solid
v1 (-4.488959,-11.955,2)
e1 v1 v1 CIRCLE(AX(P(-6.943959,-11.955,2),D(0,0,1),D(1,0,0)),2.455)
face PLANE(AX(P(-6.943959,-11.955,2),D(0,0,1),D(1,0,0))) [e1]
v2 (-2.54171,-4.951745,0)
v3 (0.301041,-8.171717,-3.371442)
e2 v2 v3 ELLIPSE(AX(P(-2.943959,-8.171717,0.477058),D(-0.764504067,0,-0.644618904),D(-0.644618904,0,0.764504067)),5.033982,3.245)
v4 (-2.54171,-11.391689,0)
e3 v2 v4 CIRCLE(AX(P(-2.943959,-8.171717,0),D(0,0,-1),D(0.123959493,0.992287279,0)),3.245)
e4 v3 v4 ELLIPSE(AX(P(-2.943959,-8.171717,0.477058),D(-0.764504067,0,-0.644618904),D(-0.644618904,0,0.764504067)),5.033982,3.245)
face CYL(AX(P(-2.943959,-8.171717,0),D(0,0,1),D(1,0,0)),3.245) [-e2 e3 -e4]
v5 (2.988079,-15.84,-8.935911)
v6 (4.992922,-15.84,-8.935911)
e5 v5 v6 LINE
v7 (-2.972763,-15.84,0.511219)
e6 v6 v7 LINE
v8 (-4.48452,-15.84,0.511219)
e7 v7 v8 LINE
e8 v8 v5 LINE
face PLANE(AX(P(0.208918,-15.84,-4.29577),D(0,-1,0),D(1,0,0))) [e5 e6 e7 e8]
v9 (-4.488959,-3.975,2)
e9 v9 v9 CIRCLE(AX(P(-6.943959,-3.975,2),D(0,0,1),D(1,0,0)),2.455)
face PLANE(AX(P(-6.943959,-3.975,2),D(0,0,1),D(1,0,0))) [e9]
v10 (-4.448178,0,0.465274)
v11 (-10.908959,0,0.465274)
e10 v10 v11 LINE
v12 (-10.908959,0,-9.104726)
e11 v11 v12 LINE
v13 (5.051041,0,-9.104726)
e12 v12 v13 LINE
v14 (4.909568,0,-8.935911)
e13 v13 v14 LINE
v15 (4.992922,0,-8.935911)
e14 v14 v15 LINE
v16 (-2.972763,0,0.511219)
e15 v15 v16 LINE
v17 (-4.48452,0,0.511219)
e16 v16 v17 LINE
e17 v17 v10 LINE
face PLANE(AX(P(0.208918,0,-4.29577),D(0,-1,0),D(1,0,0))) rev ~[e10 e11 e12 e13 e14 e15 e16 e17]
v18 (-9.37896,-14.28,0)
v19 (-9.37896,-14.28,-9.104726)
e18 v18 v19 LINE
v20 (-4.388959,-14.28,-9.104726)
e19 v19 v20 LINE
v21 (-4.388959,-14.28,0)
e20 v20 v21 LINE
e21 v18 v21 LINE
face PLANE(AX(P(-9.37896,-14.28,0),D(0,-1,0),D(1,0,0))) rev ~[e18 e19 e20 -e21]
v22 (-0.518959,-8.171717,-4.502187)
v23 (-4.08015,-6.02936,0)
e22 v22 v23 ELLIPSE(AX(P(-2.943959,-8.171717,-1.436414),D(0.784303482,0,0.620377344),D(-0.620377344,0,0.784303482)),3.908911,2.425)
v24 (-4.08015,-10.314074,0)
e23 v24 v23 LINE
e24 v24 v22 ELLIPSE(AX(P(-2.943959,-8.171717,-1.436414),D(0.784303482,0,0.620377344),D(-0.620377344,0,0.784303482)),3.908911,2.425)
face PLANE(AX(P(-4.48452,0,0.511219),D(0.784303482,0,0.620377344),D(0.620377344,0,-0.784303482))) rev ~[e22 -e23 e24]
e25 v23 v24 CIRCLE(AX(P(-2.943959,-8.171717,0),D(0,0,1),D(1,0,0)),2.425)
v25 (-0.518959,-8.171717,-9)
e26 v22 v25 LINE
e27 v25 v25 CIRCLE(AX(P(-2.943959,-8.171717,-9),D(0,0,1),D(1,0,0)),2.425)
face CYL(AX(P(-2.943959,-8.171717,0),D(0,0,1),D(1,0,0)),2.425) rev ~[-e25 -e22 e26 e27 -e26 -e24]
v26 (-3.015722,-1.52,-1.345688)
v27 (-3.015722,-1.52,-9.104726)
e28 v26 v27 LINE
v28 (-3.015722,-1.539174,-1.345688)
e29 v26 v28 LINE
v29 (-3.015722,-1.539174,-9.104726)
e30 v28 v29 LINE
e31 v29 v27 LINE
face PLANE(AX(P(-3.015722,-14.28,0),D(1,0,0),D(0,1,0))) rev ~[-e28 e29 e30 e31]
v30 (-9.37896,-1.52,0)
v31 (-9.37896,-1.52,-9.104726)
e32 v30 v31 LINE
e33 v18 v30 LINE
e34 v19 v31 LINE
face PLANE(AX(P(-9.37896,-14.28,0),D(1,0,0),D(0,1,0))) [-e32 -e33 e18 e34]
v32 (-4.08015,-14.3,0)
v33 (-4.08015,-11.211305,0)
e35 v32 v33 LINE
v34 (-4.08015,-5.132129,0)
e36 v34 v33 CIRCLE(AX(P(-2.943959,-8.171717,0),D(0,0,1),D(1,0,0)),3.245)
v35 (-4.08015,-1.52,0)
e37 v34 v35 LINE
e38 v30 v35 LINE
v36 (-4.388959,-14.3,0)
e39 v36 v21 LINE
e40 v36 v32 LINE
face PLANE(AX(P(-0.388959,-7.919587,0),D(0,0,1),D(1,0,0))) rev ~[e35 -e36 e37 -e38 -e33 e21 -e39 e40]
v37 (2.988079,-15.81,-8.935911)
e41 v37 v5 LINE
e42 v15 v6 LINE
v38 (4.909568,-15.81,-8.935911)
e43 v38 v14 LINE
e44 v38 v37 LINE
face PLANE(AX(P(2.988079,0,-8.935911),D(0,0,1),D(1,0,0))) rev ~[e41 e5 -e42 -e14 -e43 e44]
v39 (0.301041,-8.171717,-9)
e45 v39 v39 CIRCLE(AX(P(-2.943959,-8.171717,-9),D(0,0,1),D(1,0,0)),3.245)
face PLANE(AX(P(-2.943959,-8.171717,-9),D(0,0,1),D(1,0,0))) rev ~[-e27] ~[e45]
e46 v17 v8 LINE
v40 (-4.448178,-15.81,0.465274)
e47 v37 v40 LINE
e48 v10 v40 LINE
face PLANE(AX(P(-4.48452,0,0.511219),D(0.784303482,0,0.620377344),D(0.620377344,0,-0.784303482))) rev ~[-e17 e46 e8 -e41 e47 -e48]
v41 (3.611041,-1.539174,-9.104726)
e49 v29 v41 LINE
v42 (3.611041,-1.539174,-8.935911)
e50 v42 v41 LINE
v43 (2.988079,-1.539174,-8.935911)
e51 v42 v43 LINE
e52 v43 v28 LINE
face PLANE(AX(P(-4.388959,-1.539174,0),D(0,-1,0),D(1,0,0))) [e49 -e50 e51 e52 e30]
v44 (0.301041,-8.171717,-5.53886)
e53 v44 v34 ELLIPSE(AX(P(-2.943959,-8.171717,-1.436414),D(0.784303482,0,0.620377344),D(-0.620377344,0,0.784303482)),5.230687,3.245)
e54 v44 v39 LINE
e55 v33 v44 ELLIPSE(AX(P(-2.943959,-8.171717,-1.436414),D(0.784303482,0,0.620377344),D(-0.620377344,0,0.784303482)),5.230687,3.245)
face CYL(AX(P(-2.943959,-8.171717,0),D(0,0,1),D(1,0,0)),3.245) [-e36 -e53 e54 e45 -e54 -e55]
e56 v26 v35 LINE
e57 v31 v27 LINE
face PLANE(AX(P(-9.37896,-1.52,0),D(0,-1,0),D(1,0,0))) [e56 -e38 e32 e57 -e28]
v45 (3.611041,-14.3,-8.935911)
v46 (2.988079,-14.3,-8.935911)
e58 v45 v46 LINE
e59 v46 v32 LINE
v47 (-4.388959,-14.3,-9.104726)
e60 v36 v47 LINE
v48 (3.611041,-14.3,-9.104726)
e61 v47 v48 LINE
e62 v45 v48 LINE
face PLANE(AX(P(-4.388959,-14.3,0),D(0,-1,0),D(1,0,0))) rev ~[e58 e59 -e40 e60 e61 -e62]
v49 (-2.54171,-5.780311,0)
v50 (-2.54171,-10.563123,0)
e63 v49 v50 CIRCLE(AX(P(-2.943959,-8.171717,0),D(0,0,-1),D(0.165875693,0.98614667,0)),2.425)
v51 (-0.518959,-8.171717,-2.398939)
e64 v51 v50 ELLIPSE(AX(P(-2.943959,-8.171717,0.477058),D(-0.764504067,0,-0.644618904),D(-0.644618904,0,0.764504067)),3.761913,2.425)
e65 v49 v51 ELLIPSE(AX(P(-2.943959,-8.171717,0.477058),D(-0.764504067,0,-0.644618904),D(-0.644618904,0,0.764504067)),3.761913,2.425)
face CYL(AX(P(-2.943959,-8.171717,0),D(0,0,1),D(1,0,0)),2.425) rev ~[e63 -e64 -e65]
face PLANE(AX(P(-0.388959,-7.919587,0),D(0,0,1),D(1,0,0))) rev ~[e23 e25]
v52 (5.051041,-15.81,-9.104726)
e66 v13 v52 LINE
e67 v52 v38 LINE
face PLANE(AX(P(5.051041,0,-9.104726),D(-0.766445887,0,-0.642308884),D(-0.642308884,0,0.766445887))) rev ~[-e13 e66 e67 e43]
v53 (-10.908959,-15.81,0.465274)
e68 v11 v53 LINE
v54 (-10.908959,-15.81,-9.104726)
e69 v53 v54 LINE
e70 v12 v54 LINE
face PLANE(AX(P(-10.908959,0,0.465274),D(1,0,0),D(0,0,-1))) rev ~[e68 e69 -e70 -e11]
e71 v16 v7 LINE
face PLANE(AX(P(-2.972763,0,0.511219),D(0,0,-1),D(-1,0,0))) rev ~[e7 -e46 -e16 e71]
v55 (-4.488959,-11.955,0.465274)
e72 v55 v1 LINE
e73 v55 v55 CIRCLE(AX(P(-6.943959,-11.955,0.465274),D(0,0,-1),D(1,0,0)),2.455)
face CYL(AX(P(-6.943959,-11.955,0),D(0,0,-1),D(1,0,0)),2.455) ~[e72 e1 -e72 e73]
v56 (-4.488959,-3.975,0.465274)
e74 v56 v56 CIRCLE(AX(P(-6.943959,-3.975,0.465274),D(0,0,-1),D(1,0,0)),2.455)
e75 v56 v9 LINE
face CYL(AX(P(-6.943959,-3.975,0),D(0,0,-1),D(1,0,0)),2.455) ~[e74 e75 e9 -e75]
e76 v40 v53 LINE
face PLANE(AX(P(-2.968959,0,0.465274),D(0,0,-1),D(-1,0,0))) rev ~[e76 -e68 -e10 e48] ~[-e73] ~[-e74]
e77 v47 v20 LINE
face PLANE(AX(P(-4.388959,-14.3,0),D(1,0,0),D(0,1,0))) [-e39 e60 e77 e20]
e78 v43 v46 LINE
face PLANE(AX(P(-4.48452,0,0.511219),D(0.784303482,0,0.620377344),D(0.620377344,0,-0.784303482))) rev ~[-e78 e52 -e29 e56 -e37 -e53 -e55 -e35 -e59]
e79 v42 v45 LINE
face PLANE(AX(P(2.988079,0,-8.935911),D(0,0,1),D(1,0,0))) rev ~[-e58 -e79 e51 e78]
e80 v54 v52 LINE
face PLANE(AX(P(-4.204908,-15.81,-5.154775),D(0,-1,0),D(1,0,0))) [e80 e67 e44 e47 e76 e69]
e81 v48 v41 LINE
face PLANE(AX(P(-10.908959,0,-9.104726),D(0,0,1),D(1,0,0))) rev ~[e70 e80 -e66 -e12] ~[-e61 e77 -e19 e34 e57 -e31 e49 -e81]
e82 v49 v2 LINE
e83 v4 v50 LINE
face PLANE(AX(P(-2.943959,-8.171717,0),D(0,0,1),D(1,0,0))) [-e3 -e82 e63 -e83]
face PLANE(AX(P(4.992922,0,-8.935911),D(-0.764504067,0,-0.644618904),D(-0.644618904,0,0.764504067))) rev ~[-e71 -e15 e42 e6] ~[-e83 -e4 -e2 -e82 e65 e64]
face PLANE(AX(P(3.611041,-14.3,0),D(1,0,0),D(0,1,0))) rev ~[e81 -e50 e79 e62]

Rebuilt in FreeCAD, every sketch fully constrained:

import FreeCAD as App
import Part
import Sketcher
Q = App.Units.Quantity


def add_polygon(sketch, points):
    """Adds a closed chain of lines whose ends are joined by coincident constraints."""
    first, n = sketch.GeometryCount, len(points)
    for a, b in zip(points, points[1:] + points[:1]):
        sketch.addGeometry(Part.LineSegment(App.Vector(*a, 0), App.Vector(*b, 0)), False)
    for i in range(n):
        sketch.addConstraint(Sketcher.Constraint("Coincident", first + i, 2, first + (i + 1) % n, 1))

doc = App.newDocument("Part")
body = doc.addObject("PartDesign::Body", "Body")

# Sketch on XZ plane
sketch1 = body.newObject("Sketcher::SketchObject", "Sketch")
sketch1.AttachmentSupport = (doc.getObject("XZ_Plane"), [""])
sketch1.MapMode = "FlatFace"
add_polygon(sketch1, [(-3, 0), (-11, 0), (-11, -9), (5, -9)])  # lines 0-3
sketch1.addConstraint([
    Sketcher.Constraint("Horizontal", 0),
    Sketcher.Constraint("Vertical", 1),
    Sketcher.Constraint("Horizontal", 2),
    Sketcher.Constraint("DistanceX", 0, 2, 0, 1, Q("7.94 mm")),
    Sketcher.Constraint("DistanceX", 2, 1, 2, 2, Q("15.96 mm")),
    Sketcher.Constraint("DistanceY", 1, 2, 1, 1, Q("9.57 mm")),
    Sketcher.Constraint("DistanceX", 0, 2, -1, 1, Q("10.908959 mm")),
    Sketcher.Constraint("DistanceY", -1, 1, 0, 2, Q("0.465274 mm")),
])
pad1 = body.newObject("PartDesign::Pad", "Pad")
pad1.Profile = sketch1
pad1.Length = 15.81

# Sketch on XY plane
sketch2 = body.newObject("Sketcher::SketchObject", "Sketch001")
sketch2.AttachmentSupport = (doc.getObject("XY_Plane"), [""])
sketch2.MapMode = "FlatFace"
sketch2.addGeometry([
    Part.Circle(App.Vector(-6.9, -4, 0), App.Vector(0, 0, 1), 2.5),
    Part.Circle(App.Vector(-6.9, -12, 0), App.Vector(0, 0, 1), 2.5),
], False)
sketch2.addConstraint([
    Sketcher.Constraint("Equal", 0, 1),
    Sketcher.Constraint("Vertical", 0, 3, 1, 3),
    Sketcher.Constraint("Diameter", 0, Q("4.91 mm")),
    Sketcher.Constraint("DistanceY", 1, 3, 0, 3, Q("7.98 mm")),
    Sketcher.Constraint("DistanceY", 0, 3, -1, 1, Q("3.975 mm")),
    Sketcher.Constraint("DistanceX", 0, 3, -1, 1, Q("6.943959 mm")),
])
pad2 = body.newObject("PartDesign::Pad", "Pad001")
pad2.Profile = sketch2
pad2.Length = 2

# Sketch on XY plane
sketch3 = body.newObject("Sketcher::SketchObject", "Sketch002")
sketch3.AttachmentSupport = (doc.getObject("XY_Plane"), [""])
sketch3.MapMode = "FlatFace"
add_polygon(sketch3, [(-9, -2), (-9, -14), (-3, -14), (-3, -2)])  # lines 0-3
sketch3.addConstraint([
    Sketcher.Constraint("Vertical", 0),
    Sketcher.Constraint("Horizontal", 1),
    Sketcher.Constraint("Vertical", 2),
    Sketcher.Constraint("Horizontal", 3),
    Sketcher.Constraint("DistanceY", 0, 2, 0, 1, Q("12.76 mm")),
    Sketcher.Constraint("DistanceY", 0, 2, -1, 1, Q("14.28 mm")),
    Sketcher.Constraint("DistanceX", 1, 1, 1, 2, Q("6.363237 mm")),
    Sketcher.Constraint("DistanceX", 0, 2, -1, 1, Q("9.37896 mm")),
])
pocket1 = body.newObject("PartDesign::Pocket", "Pocket")
pocket1.Profile = sketch3
pocket1.Length = 10

# Sketch on XY plane
sketch4 = body.newObject("Sketcher::SketchObject", "Sketch003")
sketch4.AttachmentSupport = (doc.getObject("XY_Plane"), [""])
sketch4.MapMode = "FlatFace"
add_polygon(sketch4, [(-4, -2), (-4, -14), (4, -14), (4, -2)])  # lines 0-3
sketch4.addConstraint([
    Sketcher.Constraint("Vertical", 0),
    Sketcher.Constraint("Horizontal", 1),
    Sketcher.Constraint("Vertical", 2),
    Sketcher.Constraint("Horizontal", 3),
    Sketcher.Constraint("DistanceX", 1, 1, 1, 2, Q("8 mm")),
    Sketcher.Constraint("DistanceY", 0, 2, -1, 1, Q("14.3 mm")),
    Sketcher.Constraint("DistanceY", 0, 2, 0, 1, Q("12.760826 mm")),
    Sketcher.Constraint("DistanceX", 0, 2, -1, 1, Q("4.388959 mm")),
])
pocket2 = body.newObject("PartDesign::Pocket", "Pocket001")
pocket2.Profile = sketch4
pocket2.Length = 10

# Sketch on XZ plane
sketch5 = body.newObject("Sketcher::SketchObject", "Sketch004")
sketch5.AttachmentSupport = (doc.getObject("XZ_Plane"), [""])
sketch5.MapMode = "FlatFace"
add_polygon(sketch5, [(5, -8.9), (-3, 0.5), (-4.5, 0.5), (3, -8.9)])  # lines 0-3
sketch5.addConstraint([
    Sketcher.Constraint("Horizontal", 1),
    Sketcher.Constraint("Horizontal", 3),
    Sketcher.Constraint("Distance", 0, Q("12.3572 mm")),
    Sketcher.Constraint("DistanceX", 1, 2, 2, 2, Q("7.472599 mm")),
    Sketcher.Constraint("Distance", 2, Q("12.045248 mm")),
    Sketcher.Constraint("DistanceX", 1, 2, 1, 1, Q("1.511757 mm")),
    Sketcher.Constraint("DistanceY", -1, 1, 0, 2, Q("0.511219 mm")),
    Sketcher.Constraint("DistanceX", 1, 2, -1, 1, Q("4.48452 mm")),
])
pad3 = body.newObject("PartDesign::Pad", "Pad002")
pad3.Profile = sketch5
pad3.Length = 15.84

# Sketch on XY plane
sketch6 = body.newObject("Sketcher::SketchObject", "Sketch005")
sketch6.AttachmentSupport = (doc.getObject("XY_Plane"), [""])
sketch6.MapMode = "FlatFace"
sketch6.addGeometry([
    Part.Circle(App.Vector(-2.9, -8.2, 0), App.Vector(0, 0, 1), 3.2),
    Part.Circle(App.Vector(-2.9, -8.2, 0), App.Vector(0, 0, 1), 2.4),
], False)
sketch6.addConstraint([
    Sketcher.Constraint("Coincident", 1, 3, 0, 3),
    Sketcher.Constraint("Diameter", 0, Q("6.49 mm")),
    Sketcher.Constraint("Diameter", 1, Q("4.85 mm")),
    Sketcher.Constraint("DistanceX", 0, 3, -1, 1, Q("2.943959 mm")),
    Sketcher.Constraint("DistanceY", 0, 3, -1, 1, Q("8.171717 mm")),
])
pad4 = body.newObject("PartDesign::Pad", "Pad003")
pad4.Profile = sketch6
pad4.Length = 9
pad4.Reversed = True

doc.recompute()
